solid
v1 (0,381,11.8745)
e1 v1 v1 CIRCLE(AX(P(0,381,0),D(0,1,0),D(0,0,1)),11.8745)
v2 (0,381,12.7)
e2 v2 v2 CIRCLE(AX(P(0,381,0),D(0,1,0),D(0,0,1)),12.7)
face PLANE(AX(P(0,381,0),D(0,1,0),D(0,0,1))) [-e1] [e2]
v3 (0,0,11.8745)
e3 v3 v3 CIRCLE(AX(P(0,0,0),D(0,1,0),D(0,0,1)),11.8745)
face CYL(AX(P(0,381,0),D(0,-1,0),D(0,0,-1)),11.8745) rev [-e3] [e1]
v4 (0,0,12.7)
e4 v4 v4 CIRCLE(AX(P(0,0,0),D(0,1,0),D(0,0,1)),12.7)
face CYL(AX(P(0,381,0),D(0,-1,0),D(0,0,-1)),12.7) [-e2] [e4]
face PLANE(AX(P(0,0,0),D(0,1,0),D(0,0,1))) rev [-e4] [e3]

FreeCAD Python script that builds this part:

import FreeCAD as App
import Part
import Sketcher
Q = App.Units.Quantity

doc = App.newDocument("Part")
body = doc.addObject("PartDesign::Body", "Body")

# Sketch on XZ plane
sketch1 = doc.addObject("Sketcher::SketchObject", "Sketch")
body.addObject(sketch1)
sketch1.AttachmentSupport = (doc.XZ_Plane, [""])
sketch1.MapMode = "FlatFace"
sketch1.addGeometry(Part.Circle(App.Vector(0, 0, 0), App.Vector(0, 0, 1), 13), False)
sketch1.addGeometry(Part.Circle(App.Vector(0, 0, 0), App.Vector(0, 0, 1), 12), False)
sketch1.addConstraint(Sketcher.Constraint("Coincident", 0, 3, -1, 1))
sketch1.addConstraint(Sketcher.Constraint("Coincident", 1, 3, -1, 1))
sketch1.addConstraint(Sketcher.Constraint("Diameter", 0, Q("1 in")))
sketch1.addConstraint(Sketcher.Constraint("Diameter", 1, Q("0.935 in")))
pad1 = doc.addObject("PartDesign::Pad", "Pad")
body.addObject(pad1)
pad1.Profile = sketch1
pad1.Length = Q("15 in")
pad1.Reversed = True

doc.recompute()
